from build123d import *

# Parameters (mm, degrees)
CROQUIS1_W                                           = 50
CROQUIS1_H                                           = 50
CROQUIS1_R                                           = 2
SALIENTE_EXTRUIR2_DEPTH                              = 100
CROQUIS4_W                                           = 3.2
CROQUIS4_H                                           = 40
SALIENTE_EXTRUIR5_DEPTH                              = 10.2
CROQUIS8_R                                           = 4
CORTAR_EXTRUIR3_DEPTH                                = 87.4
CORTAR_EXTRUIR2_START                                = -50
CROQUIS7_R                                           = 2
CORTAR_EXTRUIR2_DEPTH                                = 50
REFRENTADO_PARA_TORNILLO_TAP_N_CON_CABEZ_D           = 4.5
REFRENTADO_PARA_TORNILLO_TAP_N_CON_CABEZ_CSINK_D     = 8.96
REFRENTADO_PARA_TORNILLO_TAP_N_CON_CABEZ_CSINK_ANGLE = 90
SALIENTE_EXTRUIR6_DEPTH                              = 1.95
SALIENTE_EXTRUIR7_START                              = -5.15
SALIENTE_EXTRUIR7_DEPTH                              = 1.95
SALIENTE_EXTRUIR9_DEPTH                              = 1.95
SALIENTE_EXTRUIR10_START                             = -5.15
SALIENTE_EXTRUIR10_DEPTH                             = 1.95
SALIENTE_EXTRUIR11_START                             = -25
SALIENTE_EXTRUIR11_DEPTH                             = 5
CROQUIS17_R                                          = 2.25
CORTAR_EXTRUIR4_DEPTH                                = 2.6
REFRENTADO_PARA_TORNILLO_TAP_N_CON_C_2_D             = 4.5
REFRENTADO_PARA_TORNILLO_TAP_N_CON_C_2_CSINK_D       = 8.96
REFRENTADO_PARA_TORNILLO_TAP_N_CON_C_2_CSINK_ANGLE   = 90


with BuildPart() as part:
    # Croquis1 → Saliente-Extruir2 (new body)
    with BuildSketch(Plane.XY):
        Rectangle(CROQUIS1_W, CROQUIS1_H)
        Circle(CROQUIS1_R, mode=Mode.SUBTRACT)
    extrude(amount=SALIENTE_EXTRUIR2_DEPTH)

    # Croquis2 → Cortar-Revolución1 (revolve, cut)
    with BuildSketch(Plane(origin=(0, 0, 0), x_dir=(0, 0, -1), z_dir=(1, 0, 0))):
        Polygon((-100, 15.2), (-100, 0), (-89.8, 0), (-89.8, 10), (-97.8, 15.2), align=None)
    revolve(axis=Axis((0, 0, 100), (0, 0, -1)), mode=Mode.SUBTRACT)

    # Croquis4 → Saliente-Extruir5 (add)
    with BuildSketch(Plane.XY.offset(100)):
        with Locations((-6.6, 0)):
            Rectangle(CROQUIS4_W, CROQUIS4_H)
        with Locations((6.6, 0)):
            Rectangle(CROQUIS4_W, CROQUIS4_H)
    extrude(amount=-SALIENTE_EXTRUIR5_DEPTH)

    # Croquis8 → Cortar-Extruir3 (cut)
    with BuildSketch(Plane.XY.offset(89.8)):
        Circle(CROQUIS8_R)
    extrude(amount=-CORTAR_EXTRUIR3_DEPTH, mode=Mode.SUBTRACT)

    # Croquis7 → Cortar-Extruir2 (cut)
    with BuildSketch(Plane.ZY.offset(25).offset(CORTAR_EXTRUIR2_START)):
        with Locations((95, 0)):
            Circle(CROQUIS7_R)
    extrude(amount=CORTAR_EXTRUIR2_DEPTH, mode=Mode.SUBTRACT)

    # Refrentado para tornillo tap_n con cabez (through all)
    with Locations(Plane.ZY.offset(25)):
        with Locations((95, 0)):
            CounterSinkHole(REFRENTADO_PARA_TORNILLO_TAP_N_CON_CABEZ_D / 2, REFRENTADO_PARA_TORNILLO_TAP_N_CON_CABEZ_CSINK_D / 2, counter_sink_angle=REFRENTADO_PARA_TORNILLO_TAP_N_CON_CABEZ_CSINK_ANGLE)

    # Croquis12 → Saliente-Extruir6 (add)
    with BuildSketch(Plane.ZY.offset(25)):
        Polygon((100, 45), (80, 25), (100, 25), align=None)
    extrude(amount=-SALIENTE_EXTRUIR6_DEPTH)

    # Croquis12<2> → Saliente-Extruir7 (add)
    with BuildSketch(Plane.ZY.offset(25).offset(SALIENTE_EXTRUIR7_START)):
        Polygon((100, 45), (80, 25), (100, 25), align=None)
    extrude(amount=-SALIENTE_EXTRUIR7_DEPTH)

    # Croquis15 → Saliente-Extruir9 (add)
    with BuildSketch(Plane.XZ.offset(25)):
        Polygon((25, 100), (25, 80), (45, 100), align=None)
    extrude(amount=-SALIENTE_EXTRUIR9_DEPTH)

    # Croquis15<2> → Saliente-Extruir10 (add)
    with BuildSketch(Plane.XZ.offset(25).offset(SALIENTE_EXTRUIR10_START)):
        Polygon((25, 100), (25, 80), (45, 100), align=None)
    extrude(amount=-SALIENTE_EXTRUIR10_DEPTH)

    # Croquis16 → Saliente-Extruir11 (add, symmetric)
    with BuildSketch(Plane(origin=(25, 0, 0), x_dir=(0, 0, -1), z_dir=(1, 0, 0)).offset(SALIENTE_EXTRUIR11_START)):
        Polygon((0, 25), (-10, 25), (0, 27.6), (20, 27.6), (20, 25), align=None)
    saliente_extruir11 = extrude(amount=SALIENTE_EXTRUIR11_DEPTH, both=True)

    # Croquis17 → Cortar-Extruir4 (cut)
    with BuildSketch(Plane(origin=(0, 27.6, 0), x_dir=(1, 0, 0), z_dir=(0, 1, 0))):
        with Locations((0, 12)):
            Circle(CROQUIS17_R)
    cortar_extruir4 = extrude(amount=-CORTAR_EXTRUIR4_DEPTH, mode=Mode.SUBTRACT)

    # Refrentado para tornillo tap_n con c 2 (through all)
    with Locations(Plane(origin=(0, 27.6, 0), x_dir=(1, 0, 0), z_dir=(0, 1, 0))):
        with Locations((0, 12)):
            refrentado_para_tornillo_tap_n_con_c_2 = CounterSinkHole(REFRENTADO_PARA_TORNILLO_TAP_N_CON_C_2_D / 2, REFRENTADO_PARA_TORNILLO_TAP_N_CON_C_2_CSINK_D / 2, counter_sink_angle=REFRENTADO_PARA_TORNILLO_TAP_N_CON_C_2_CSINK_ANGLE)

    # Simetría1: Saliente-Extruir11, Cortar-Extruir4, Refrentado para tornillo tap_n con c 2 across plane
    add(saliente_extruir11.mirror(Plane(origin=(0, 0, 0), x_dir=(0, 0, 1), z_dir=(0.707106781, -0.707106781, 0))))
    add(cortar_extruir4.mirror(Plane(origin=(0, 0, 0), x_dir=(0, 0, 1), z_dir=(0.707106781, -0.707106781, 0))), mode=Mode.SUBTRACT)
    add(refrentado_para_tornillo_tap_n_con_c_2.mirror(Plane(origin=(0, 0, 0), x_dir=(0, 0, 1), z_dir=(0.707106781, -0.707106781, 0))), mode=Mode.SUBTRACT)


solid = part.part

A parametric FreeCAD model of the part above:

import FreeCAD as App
import Part
import Sketcher

doc = App.newDocument("Part")
body = doc.addObject("PartDesign::Body", "Body")

sketch1 = doc.addObject("Sketcher::SketchObject", "Sketch")
body.addObject(sketch1)
sketch1.AttachmentSupport = (doc.XY_Plane, [""])
sketch1.MapMode = "FlatFace"
sketch1.addGeometry([
    Part.LineSegment(App.Vector(-25, 25, 0), App.Vector(-25, -25, 0)),
    Part.LineSegment(App.Vector(-25, -25, 0), App.Vector(25, -25, 0)),
    Part.LineSegment(App.Vector(25, -25, 0), App.Vector(25, 25, 0)),
    Part.LineSegment(App.Vector(25, 25, 0), App.Vector(-25, 25, 0)),
    Part.Circle(App.Vector(0, 0, 0), App.Vector(0, 0, 1), 2),
], False)
sketch1.addConstraint([
    Sketcher.Constraint("Coincident", 0, 2, 1, 1),
    Sketcher.Constraint("Coincident", 1, 2, 2, 1),
    Sketcher.Constraint("Coincident", 2, 2, 3, 1),
    Sketcher.Constraint("Coincident", 3, 2, 0, 1),
    Sketcher.Constraint("Vertical", 0),
    Sketcher.Constraint("Horizontal", 1),
    Sketcher.Constraint("Vertical", 2),
    Sketcher.Constraint("Horizontal", 3),
    Sketcher.Constraint("Coincident", 4, 3, -1, 1),
    Sketcher.Constraint("Symmetric", 0, 2, 2, 2, -1, 1),
    Sketcher.Constraint("Equal", 3, 0),
    Sketcher.Constraint("Diameter", 4, 4.0),
    Sketcher.Constraint("DistanceX", 1, 1, 1, 2, 50.0),
])
pad1 = doc.addObject("PartDesign::Pad", "Pad")
body.addObject(pad1)
pad1.Profile = sketch1
pad1.Length = 100

sketch2 = doc.addObject("Sketcher::SketchObject", "Sketch001")
body.addObject(sketch2)
sketch2.AttachmentSupport = (doc.YZ_Plane, [""])
sketch2.MapMode = "FlatFace"
sketch2.addGeometry([
    Part.LineSegment(App.Vector(15.2, 100, 0), App.Vector(0, 100, 0)),
    Part.LineSegment(App.Vector(0, 100, 0), App.Vector(0, 89.8, 0)),
    Part.LineSegment(App.Vector(0, 89.8, 0), App.Vector(10, 89.8, 0)),
    Part.LineSegment(App.Vector(10, 89.8, 0), App.Vector(15.2, 97.8, 0)),
    Part.LineSegment(App.Vector(15.2, 97.8, 0), App.Vector(15.2, 100, 0)),
], False)
sketch2.addConstraint([
    Sketcher.Constraint("Coincident", 0, 2, 1, 1),
    Sketcher.Constraint("Coincident", 1, 2, 2, 1),
    Sketcher.Constraint("Coincident", 2, 2, 3, 1),
    Sketcher.Constraint("Coincident", 3, 2, 4, 1),
    Sketcher.Constraint("Coincident", 4, 2, 0, 1),
    Sketcher.Constraint("Horizontal", 0),
    Sketcher.Constraint("Vertical", 1),
    Sketcher.Constraint("Horizontal", 2),
    Sketcher.Constraint("Vertical", 4),
    Sketcher.Constraint("PointOnObject", 0, 2, -2),
    Sketcher.Constraint("DistanceX", 2, 1, 2, 2, 10.0),
    Sketcher.Constraint("DistanceX", 0, 2, 0, 1, 15.2),
    Sketcher.Constraint("DistanceY", 1, 2, 1, 1, 10.2),
    Sketcher.Constraint("DistanceY", 4, 1, 4, 2, 2.2),
    Sketcher.Constraint("DistanceY", -1, 1, 0, 2, 100.0),
])
groove = doc.addObject("PartDesign::Groove", "Groove")
body.addObject(groove)
groove.Profile = sketch2
groove.ReferenceAxis = (sketch2, ["V_Axis"])
groove.Angle = 360

sketch3 = doc.addObject("Sketcher::SketchObject", "Sketch002")
body.addObject(sketch3)
sketch3.AttachmentSupport = (doc.XY_Plane, [""])
sketch3.MapMode = "FlatFace"
sketch3.AttachmentOffset = App.Placement(App.Vector(0, 0, 100), App.Rotation())
sketch3.addGeometry([
    Part.LineSegment(App.Vector(-8.2, 20, 0), App.Vector(-8.2, -20, 0)),
    Part.LineSegment(App.Vector(-8.2, -20, 0), App.Vector(-5, -20, 0)),
    Part.LineSegment(App.Vector(-5, -20, 0), App.Vector(-5, 20, 0)),
    Part.LineSegment(App.Vector(-5, 20, 0), App.Vector(-8.2, 20, 0)),
    Part.LineSegment(App.Vector(5, 20, 0), App.Vector(5, -20, 0)),
    Part.LineSegment(App.Vector(5, -20, 0), App.Vector(8.2, -20, 0)),
    Part.LineSegment(App.Vector(8.2, -20, 0), App.Vector(8.2, 20, 0)),
    Part.LineSegment(App.Vector(8.2, 20, 0), App.Vector(5, 20, 0)),
], False)
sketch3.addConstraint([
    Sketcher.Constraint("Coincident", 0, 2, 1, 1),
    Sketcher.Constraint("Coincident", 1, 2, 2, 1),
    Sketcher.Constraint("Coincident", 2, 2, 3, 1),
    Sketcher.Constraint("Coincident", 3, 2, 0, 1),
    Sketcher.Constraint("Coincident", 4, 2, 5, 1),
    Sketcher.Constraint("Coincident", 5, 2, 6, 1),
    Sketcher.Constraint("Coincident", 6, 2, 7, 1),
    Sketcher.Constraint("Coincident", 7, 2, 4, 1),
    Sketcher.Constraint("Vertical", 0),
    Sketcher.Constraint("Horizontal", 1),
    Sketcher.Constraint("Vertical", 2),
    Sketcher.Constraint("Horizontal", 3),
    Sketcher.Constraint("Vertical", 4),
    Sketcher.Constraint("Horizontal", 5),
    Sketcher.Constraint("Vertical", 6),
    Sketcher.Constraint("Horizontal", 7),
    Sketcher.Constraint("Symmetric", 2, 2, 4, 2, -1, 1),
    Sketcher.Constraint("Symmetric", 0, 2, 6, 2, -1, 1),
    Sketcher.Constraint("Horizontal", 1, 2, 4, 2),
    Sketcher.Constraint("DistanceY", 0, 2, 0, 1, 40.0),
    Sketcher.Constraint("DistanceX", 1, 1, 1, 2, 3.2),
    Sketcher.Constraint("DistanceX", 1, 2, -1, 1, 5.0),
])
pad2 = doc.addObject("PartDesign::Pad", "Pad001")
body.addObject(pad2)
pad2.Profile = sketch3
pad2.Length = 10.2
pad2.Reversed = True

sketch4 = doc.addObject("Sketcher::SketchObject", "Sketch003")
body.addObject(sketch4)
sketch4.AttachmentSupport = (doc.XY_Plane, [""])
sketch4.MapMode = "FlatFace"
sketch4.AttachmentOffset = App.Placement(App.Vector(0, 0, 89.8), App.Rotation())
sketch4.addGeometry(Part.Circle(App.Vector(0, 0, 0), App.Vector(0, 0, 1), 4), False)
sketch4.addConstraint([
    Sketcher.Constraint("Coincident", 0, 3, -1, 1),
    Sketcher.Constraint("Diameter", 0, 8.0),
])
pocket1 = doc.addObject("PartDesign::Pocket", "Pocket")
body.addObject(pocket1)
pocket1.Profile = sketch4
pocket1.Length = 87.4

sketch5 = doc.addObject("Sketcher::SketchObject", "Sketch004")
body.addObject(sketch5)
sketch5.AttachmentSupport = (doc.YZ_Plane, [""])
sketch5.MapMode = "FlatFace"
sketch5.AttachmentOffset = App.Placement(App.Vector(0, 0, 25), App.Rotation())
sketch5.addGeometry(Part.Circle(App.Vector(0, 95, 0), App.Vector(0, 0, 1), 2), False)
sketch5.addConstraint([
    Sketcher.Constraint("PointOnObject", 0, 3, -2),
    Sketcher.Constraint("Diameter", 0, 4.0),
    Sketcher.Constraint("DistanceY", -1, 1, 0, 3, 95.0),
])
pocket2 = doc.addObject("PartDesign::Pocket", "Pocket001")
body.addObject(pocket2)
pocket2.Profile = sketch5
pocket2.Length = 50

sketch6 = doc.addObject("Sketcher::SketchObject", "Sketch005")
body.addObject(sketch6)
sketch6.AttachmentSupport = (doc.YZ_Plane, [""])
sketch6.MapMode = "FlatFace"
sketch6.AttachmentOffset = App.Placement(App.Vector(0, 0, -25), App.Rotation())
sketch6.addGeometry(Part.Circle(App.Vector(0, 95, 0), App.Vector(0, 0, 1), 2.2), False)
sketch6.addConstraint([
    Sketcher.Constraint("PointOnObject", 0, 3, -2),
    Sketcher.Constraint("Diameter", 0, 4.5),
    Sketcher.Constraint("DistanceY", -1, 1, 0, 3, 95.0),
])
doc.recompute()
hole = doc.addObject("PartDesign::Hole", "Hole")
body.addObject(hole)
hole.Profile = sketch6
hole.ThreadType = "None"
hole.Diameter = 4.5
hole.DepthType = "ThroughAll"
hole.HoleCutType = "Countersink"
hole.HoleCutDiameter = 8.96
hole.HoleCutCountersinkAngle = 90
hole.Reversed = True

sketch7 = doc.addObject("Sketcher::SketchObject", "Sketch006")
body.addObject(sketch7)
sketch7.AttachmentSupport = (doc.YZ_Plane, [""])
sketch7.MapMode = "FlatFace"
sketch7.AttachmentOffset = App.Placement(App.Vector(0, 0, -25), App.Rotation())
sketch7.addGeometry([
    Part.LineSegment(App.Vector(45, 100, 0), App.Vector(25, 80, 0)),
    Part.LineSegment(App.Vector(25, 80, 0), App.Vector(25, 100, 0)),
    Part.LineSegment(App.Vector(25, 100, 0), App.Vector(45, 100, 0)),
], False)
sketch7.addConstraint([
    Sketcher.Constraint("Coincident", 0, 2, 1, 1),
    Sketcher.Constraint("Coincident", 1, 2, 2, 1),
    Sketcher.Constraint("Coincident", 2, 2, 0, 1),
    Sketcher.Constraint("Vertical", 1),
    Sketcher.Constraint("Horizontal", 2),
    Sketcher.Constraint("Equal", 2, 1),
    Sketcher.Constraint("DistanceX", 2, 1, 2, 2, 20.0),
    Sketcher.Constraint("DistanceX", -1, 1, 0, 2, 25.0),
    Sketcher.Constraint("DistanceY", -1, 1, 0, 2, 80.0),
])
pad3 = doc.addObject("PartDesign::Pad", "Pad002")
body.addObject(pad3)
pad3.Profile = sketch7
pad3.Length = 1.95

sketch8 = doc.addObject("Sketcher::SketchObject", "Sketch007")
body.addObject(sketch8)
sketch8.AttachmentSupport = (doc.YZ_Plane, [""])
sketch8.MapMode = "FlatFace"
sketch8.AttachmentOffset = App.Placement(App.Vector(0, 0, -19.85), App.Rotation())
sketch8.addGeometry([
    Part.LineSegment(App.Vector(45, 100, 0), App.Vector(25, 80, 0)),
    Part.LineSegment(App.Vector(25, 80, 0), App.Vector(25, 100, 0)),
    Part.LineSegment(App.Vector(25, 100, 0), App.Vector(45, 100, 0)),
], False)
sketch8.addConstraint([
    Sketcher.Constraint("Coincident", 0, 2, 1, 1),
    Sketcher.Constraint("Coincident", 1, 2, 2, 1),
    Sketcher.Constraint("Coincident", 2, 2, 0, 1),
    Sketcher.Constraint("Vertical", 1),
    Sketcher.Constraint("Horizontal", 2),
    Sketcher.Constraint("Equal", 2, 1),
    Sketcher.Constraint("DistanceX", 2, 1, 2, 2, 20.0),
    Sketcher.Constraint("DistanceX", -1, 1, 0, 2, 25.0),
    Sketcher.Constraint("DistanceY", -1, 1, 0, 2, 80.0),
])
pad4 = doc.addObject("PartDesign::Pad", "Pad003")
body.addObject(pad4)
pad4.Profile = sketch8
pad4.Length = 1.95

sketch9 = doc.addObject("Sketcher::SketchObject", "Sketch008")
body.addObject(sketch9)
sketch9.AttachmentSupport = (doc.XZ_Plane, [""])
sketch9.MapMode = "FlatFace"
sketch9.AttachmentOffset = App.Placement(App.Vector(0, 0, 25), App.Rotation())
sketch9.addGeometry([
    Part.LineSegment(App.Vector(25, 100, 0), App.Vector(25, 80, 0)),
    Part.LineSegment(App.Vector(25, 80, 0), App.Vector(45, 100, 0)),
    Part.LineSegment(App.Vector(45, 100, 0), App.Vector(25, 100, 0)),
], False)
sketch9.addConstraint([
    Sketcher.Constraint("Coincident", 0, 2, 1, 1),
    Sketcher.Constraint("Coincident", 1, 2, 2, 1),
    Sketcher.Constraint("Coincident", 2, 2, 0, 1),
    Sketcher.Constraint("Vertical", 0),
    Sketcher.Constraint("Horizontal", 2),
    Sketcher.Constraint("Equal", 2, 0),
    Sketcher.Constraint("DistanceX", 2, 2, 2, 1, 20.0),
    Sketcher.Constraint("DistanceX", -1, 1, 0, 2, 25.0),
    Sketcher.Constraint("DistanceY", -1, 1, 0, 2, 80.0),
])
pad5 = doc.addObject("PartDesign::Pad", "Pad004")
body.addObject(pad5)
pad5.Profile = sketch9
pad5.Length = 1.95
pad5.Reversed = True

sketch10 = doc.addObject("Sketcher::SketchObject", "Sketch009")
body.addObject(sketch10)
sketch10.AttachmentSupport = (doc.XZ_Plane, [""])
sketch10.MapMode = "FlatFace"
sketch10.AttachmentOffset = App.Placement(App.Vector(0, 0, 19.85), App.Rotation())
sketch10.addGeometry([
    Part.LineSegment(App.Vector(25, 100, 0), App.Vector(25, 80, 0)),
    Part.LineSegment(App.Vector(25, 80, 0), App.Vector(45, 100, 0)),
    Part.LineSegment(App.Vector(45, 100, 0), App.Vector(25, 100, 0)),
], False)
sketch10.addConstraint([
    Sketcher.Constraint("Coincident", 0, 2, 1, 1),
    Sketcher.Constraint("Coincident", 1, 2, 2, 1),
    Sketcher.Constraint("Coincident", 2, 2, 0, 1),
    Sketcher.Constraint("Vertical", 0),
    Sketcher.Constraint("Horizontal", 2),
    Sketcher.Constraint("Equal", 2, 0),
    Sketcher.Constraint("DistanceX", 2, 2, 2, 1, 20.0),
    Sketcher.Constraint("DistanceX", -1, 1, 0, 2, 25.0),
    Sketcher.Constraint("DistanceY", -1, 1, 0, 2, 80.0),
])
pad6 = doc.addObject("PartDesign::Pad", "Pad005")
body.addObject(pad6)
pad6.Profile = sketch10
pad6.Length = 1.95
pad6.Reversed = True

sketch11 = doc.addObject("Sketcher::SketchObject", "Sketch010")
body.addObject(sketch11)
sketch11.AttachmentSupport = (doc.YZ_Plane, [""])
sketch11.MapMode = "FlatFace"
sketch11.addGeometry([
    Part.LineSegment(App.Vector(25, 10, 0), App.Vector(25, -20, 0)),
    Part.LineSegment(App.Vector(25, -20, 0), App.Vector(27.6, -20, 0)),
    Part.LineSegment(App.Vector(27.6, -20, 0), App.Vector(27.6, 0, 0)),
    Part.LineSegment(App.Vector(27.6, 0, 0), App.Vector(25, 10, 0)),
], False)
sketch11.addConstraint([
    Sketcher.Constraint("Coincident", 0, 2, 1, 1),
    Sketcher.Constraint("Coincident", 1, 2, 2, 1),
    Sketcher.Constraint("Coincident", 2, 2, 3, 1),
    Sketcher.Constraint("Coincident", 3, 2, 0, 1),
    Sketcher.Constraint("Vertical", 0),
    Sketcher.Constraint("Horizontal", 1),
    Sketcher.Constraint("Vertical", 2),
    Sketcher.Constraint("PointOnObject", 2, 2, -1),
    Sketcher.Constraint("DistanceY", 0, 2, 0, 1, 30.0),
    Sketcher.Constraint("DistanceY", 2, 1, 2, 2, 20.0),
    Sketcher.Constraint("DistanceX", 1, 1, 1, 2, 2.6),
    Sketcher.Constraint("DistanceX", -1, 1, 0, 2, 25.0),
])
pad7 = doc.addObject("PartDesign::Pad", "Pad006")
body.addObject(pad7)
pad7.Profile = sketch11
pad7.Length = 10
pad7.Midplane = True

sketch12 = doc.addObject("Sketcher::SketchObject", "Sketch011")
body.addObject(sketch12)
sketch12.AttachmentSupport = (doc.XZ_Plane, [""])
sketch12.MapMode = "FlatFace"
sketch12.AttachmentOffset = App.Placement(App.Vector(0, 0, -27.6), App.Rotation())
sketch12.addGeometry(Part.Circle(App.Vector(0, -12, 0), App.Vector(0, 0, 1), 2.2), False)
sketch12.addConstraint([
    Sketcher.Constraint("PointOnObject", 0, 3, -2),
    Sketcher.Constraint("Diameter", 0, 4.5),
    Sketcher.Constraint("DistanceY", 0, 3, -1, 1, 12.0),
])
pocket3 = doc.addObject("PartDesign::Pocket", "Pocket002")
body.addObject(pocket3)
pocket3.Profile = sketch12
pocket3.Length = 2.6
pocket3.Reversed = True

sketch13 = doc.addObject("Sketcher::SketchObject", "Sketch012")
body.addObject(sketch13)
sketch13.AttachmentSupport = (doc.XZ_Plane, [""])
sketch13.MapMode = "FlatFace"
sketch13.AttachmentOffset = App.Placement(App.Vector(0, 0, -27.6), App.Rotation())
sketch13.addGeometry(Part.Circle(App.Vector(0, -12, 0), App.Vector(0, 0, 1), 2.2), False)
sketch13.addConstraint([
    Sketcher.Constraint("PointOnObject", 0, 3, -2),
    Sketcher.Constraint("Diameter", 0, 4.5),
    Sketcher.Constraint("DistanceY", 0, 3, -1, 1, 12.0),
])
doc.recompute()
hole2 = doc.addObject("PartDesign::Hole", "Hole001")
body.addObject(hole2)
hole2.Profile = sketch13
hole2.ThreadType = "None"
hole2.Diameter = 4.5
hole2.DepthType = "ThroughAll"
hole2.HoleCutType = "Countersink"
hole2.HoleCutDiameter = 8.96
hole2.HoleCutCountersinkAngle = 90
hole2.Reversed = True
doc.recompute()

datumplane = doc.addObject("PartDesign::Plane", "DatumPlane")
body.addObject(datumplane)
datumplane.Placement = App.Placement(App.Vector(0, 0, 0), App.Rotation(App.Vector(-0.707106781, -0.707106781, 0), App.Vector(0, 0, -1), App.Vector(0.707106781, -0.707106781, 0), "ZXY"))
mirrored = doc.addObject("PartDesign::Mirrored", "Mirrored")
body.addObject(mirrored)
mirrored.Originals = [pad7, pocket3, hole2]
mirrored.MirrorPlane = (datumplane, [""])
body.Tip = mirrored

doc.recompute()
